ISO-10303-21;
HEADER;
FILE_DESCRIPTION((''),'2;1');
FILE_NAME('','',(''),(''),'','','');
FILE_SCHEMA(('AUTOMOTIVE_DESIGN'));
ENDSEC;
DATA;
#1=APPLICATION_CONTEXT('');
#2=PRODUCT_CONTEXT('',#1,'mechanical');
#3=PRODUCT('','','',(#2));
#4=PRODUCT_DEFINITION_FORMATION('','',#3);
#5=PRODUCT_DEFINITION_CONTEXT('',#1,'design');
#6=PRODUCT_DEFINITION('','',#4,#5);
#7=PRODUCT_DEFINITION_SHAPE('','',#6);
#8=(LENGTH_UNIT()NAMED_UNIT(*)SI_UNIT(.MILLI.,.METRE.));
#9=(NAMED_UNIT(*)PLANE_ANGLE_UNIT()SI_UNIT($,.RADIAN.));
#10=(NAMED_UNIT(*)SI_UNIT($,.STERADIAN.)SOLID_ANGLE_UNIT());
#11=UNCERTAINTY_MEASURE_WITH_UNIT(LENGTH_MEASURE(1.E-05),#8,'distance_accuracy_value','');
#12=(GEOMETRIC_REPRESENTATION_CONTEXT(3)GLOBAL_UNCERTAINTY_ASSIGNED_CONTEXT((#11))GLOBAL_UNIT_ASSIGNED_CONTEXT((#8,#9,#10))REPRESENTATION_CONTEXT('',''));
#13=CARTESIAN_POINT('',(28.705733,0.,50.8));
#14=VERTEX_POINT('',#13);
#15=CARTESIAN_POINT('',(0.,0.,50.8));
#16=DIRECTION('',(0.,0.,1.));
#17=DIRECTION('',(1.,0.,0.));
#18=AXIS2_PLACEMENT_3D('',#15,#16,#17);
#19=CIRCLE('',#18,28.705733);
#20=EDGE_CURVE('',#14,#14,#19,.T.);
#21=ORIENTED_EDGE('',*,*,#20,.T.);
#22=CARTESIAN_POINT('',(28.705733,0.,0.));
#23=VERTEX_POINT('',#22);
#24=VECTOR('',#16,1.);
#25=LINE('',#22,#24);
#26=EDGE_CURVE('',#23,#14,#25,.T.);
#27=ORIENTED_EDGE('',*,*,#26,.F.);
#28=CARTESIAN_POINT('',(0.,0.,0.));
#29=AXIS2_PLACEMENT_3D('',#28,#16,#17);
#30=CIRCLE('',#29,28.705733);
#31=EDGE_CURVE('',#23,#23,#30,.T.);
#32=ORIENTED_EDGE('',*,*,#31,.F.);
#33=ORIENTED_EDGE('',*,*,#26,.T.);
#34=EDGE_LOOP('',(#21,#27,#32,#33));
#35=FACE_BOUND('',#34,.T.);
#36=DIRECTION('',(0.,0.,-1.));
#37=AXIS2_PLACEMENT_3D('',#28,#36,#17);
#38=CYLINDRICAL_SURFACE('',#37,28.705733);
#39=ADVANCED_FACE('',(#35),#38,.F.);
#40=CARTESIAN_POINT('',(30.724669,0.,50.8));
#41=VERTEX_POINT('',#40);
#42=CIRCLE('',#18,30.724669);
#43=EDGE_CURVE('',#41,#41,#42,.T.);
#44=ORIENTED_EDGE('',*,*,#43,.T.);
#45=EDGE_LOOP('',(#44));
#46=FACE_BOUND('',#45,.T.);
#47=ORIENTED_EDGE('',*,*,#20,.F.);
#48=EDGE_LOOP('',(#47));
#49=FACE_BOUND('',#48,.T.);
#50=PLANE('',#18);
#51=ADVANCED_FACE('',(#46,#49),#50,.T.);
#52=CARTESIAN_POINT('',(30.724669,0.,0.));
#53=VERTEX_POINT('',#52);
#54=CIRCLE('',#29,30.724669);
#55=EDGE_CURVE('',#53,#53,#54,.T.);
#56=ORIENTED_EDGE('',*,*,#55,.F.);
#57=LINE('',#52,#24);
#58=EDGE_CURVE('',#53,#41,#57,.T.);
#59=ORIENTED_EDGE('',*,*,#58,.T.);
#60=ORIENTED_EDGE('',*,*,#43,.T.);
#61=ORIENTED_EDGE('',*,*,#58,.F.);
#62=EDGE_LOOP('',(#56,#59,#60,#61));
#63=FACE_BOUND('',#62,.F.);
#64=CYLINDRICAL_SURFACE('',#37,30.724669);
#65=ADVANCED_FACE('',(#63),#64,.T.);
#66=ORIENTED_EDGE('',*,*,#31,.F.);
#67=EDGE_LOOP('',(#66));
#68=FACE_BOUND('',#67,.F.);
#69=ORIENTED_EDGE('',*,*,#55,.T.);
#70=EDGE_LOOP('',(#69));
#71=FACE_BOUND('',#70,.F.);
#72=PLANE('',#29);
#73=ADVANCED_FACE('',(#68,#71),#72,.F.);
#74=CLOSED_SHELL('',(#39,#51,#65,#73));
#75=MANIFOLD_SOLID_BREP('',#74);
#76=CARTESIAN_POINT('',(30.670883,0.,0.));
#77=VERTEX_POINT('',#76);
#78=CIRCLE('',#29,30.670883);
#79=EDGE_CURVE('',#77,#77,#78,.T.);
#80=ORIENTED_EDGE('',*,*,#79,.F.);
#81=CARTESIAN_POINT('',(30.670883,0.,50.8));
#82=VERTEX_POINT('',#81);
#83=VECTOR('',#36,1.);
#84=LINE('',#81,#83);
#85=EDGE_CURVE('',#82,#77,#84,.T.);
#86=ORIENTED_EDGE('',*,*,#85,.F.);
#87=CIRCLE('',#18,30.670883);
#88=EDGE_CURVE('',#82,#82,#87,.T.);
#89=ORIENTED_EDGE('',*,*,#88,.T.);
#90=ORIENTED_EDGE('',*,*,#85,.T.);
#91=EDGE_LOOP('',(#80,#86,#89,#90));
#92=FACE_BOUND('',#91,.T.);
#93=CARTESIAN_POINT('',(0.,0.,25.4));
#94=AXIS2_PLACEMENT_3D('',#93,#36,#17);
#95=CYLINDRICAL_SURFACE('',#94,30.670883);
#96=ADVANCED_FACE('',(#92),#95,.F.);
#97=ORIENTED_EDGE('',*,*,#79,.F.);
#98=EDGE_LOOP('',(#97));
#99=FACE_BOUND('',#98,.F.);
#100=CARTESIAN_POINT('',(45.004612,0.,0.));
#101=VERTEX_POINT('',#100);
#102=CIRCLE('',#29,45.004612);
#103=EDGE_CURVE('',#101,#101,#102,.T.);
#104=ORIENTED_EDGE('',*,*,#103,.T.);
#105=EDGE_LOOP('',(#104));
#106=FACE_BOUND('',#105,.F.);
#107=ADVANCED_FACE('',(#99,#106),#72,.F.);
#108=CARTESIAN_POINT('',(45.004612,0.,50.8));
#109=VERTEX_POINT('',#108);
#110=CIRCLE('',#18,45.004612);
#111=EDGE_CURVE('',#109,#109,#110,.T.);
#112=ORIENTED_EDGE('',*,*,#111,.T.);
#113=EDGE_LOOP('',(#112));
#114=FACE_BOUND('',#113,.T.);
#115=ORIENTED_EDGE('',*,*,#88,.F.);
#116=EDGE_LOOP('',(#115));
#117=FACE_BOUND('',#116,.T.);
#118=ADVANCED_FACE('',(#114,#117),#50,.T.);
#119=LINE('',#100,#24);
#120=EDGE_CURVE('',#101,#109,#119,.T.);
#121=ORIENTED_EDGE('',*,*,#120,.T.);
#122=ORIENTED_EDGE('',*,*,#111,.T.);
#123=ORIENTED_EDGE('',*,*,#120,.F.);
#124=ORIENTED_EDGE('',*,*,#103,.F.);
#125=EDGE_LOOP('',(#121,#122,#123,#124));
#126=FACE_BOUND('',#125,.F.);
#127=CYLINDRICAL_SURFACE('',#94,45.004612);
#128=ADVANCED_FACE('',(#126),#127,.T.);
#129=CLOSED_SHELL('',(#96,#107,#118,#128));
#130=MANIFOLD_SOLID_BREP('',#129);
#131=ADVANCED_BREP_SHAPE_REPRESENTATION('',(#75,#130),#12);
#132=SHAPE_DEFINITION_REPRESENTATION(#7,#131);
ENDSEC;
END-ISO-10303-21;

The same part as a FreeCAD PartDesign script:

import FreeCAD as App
import Part
import Sketcher
Q = App.Units.Quantity

doc = App.newDocument("Part")
params = doc.addObject("Spreadsheet::Sheet", "Params")
for row, (alias, value) in enumerate([
    ("pad1_length", "1 in"),
    ("pad2_length", "1 in"),
    ("pad3_length", "2 in"),
], start=1):
    params.set(f"A{row}", alias)
    params.set(f"B{row}", "=" + value)
    params.setAlias(f"B{row}", alias)

body = doc.addObject("PartDesign::Body", "Body")

# Sketch on XY plane
sketch1 = body.newObject("Sketcher::SketchObject", "Sketch")
sketch1.AttachmentSupport = (doc.getObject("XY_Plane"), [""])
sketch1.MapMode = "FlatFace"
sketch1.addGeometry(Part.Circle(App.Vector(0, 0, 0), App.Vector(0, 0, 1), 45), False)
sketch1.addGeometry(Part.Circle(App.Vector(0, 0, 0), App.Vector(0, 0, 1), 31), False)
sketch1.addConstraint(Sketcher.Constraint("Coincident", 0, 3, -1, 1))
sketch1.addConstraint(Sketcher.Constraint("Coincident", 1, 3, -1, 1))
sketch1.addConstraint(Sketcher.Constraint("Diameter", 0, Q("90.009224 mm")))
sketch1.addConstraint(Sketcher.Constraint("Diameter", 1, Q("61.341766 mm")))
pad1 = body.newObject("PartDesign::Pad", "Pad")
pad1.Profile = sketch1
pad1.setExpression("Length", "Params.pad1_length")

# Sketch on XY plane
sketch2 = body.newObject("Sketcher::SketchObject", "Sketch001")
sketch2.AttachmentSupport = (doc.getObject("XY_Plane"), [""])
sketch2.MapMode = "FlatFace"
sketch2.AttachmentOffset = App.Placement(App.Vector(0, 0, 1 * 25.4), App.Rotation())
sketch2.addGeometry(Part.Circle(App.Vector(0, 0, 0), App.Vector(0, 0, 1), 45), False)
sketch2.addGeometry(Part.Circle(App.Vector(0, 0, 0), App.Vector(0, 0, 1), 31), False)
sketch2.addConstraint(Sketcher.Constraint("Coincident", 0, 3, -1, 1))
sketch2.addConstraint(Sketcher.Constraint("Coincident", 1, 3, -1, 1))
sketch2.addConstraint(Sketcher.Constraint("Diameter", 0, Q("90.009224 mm")))
sketch2.addConstraint(Sketcher.Constraint("Diameter", 1, Q("61.341766 mm")))
pad2 = body.newObject("PartDesign::Pad", "Pad001")
pad2.Profile = sketch2
pad2.setExpression("Length", "Params.pad2_length")
body2 = doc.addObject("PartDesign::Body", "Body001")

# Sketch on XY plane
sketch3 = body2.newObject("Sketcher::SketchObject", "Sketch002")
sketch3.AttachmentSupport = (doc.getObject("XY_Plane001"), [""])
sketch3.MapMode = "FlatFace"
sketch3.addGeometry(Part.Circle(App.Vector(0, 0, 0), App.Vector(0, 0, 1), 31), False)
sketch3.addGeometry(Part.Circle(App.Vector(0, 0, 0), App.Vector(0, 0, 1), 29), False)
sketch3.addConstraint(Sketcher.Constraint("Coincident", 0, 3, -1, 1))
sketch3.addConstraint(Sketcher.Constraint("Coincident", 1, 3, -1, 1))
sketch3.addConstraint(Sketcher.Constraint("Diameter", 0, Q("61.449338 mm")))
sketch3.addConstraint(Sketcher.Constraint("Diameter", 1, Q("57.411466 mm")))
pad3 = body2.newObject("PartDesign::Pad", "Pad002")
pad3.Profile = sketch3
pad3.setExpression("Length", "Params.pad3_length")

doc.recompute()
